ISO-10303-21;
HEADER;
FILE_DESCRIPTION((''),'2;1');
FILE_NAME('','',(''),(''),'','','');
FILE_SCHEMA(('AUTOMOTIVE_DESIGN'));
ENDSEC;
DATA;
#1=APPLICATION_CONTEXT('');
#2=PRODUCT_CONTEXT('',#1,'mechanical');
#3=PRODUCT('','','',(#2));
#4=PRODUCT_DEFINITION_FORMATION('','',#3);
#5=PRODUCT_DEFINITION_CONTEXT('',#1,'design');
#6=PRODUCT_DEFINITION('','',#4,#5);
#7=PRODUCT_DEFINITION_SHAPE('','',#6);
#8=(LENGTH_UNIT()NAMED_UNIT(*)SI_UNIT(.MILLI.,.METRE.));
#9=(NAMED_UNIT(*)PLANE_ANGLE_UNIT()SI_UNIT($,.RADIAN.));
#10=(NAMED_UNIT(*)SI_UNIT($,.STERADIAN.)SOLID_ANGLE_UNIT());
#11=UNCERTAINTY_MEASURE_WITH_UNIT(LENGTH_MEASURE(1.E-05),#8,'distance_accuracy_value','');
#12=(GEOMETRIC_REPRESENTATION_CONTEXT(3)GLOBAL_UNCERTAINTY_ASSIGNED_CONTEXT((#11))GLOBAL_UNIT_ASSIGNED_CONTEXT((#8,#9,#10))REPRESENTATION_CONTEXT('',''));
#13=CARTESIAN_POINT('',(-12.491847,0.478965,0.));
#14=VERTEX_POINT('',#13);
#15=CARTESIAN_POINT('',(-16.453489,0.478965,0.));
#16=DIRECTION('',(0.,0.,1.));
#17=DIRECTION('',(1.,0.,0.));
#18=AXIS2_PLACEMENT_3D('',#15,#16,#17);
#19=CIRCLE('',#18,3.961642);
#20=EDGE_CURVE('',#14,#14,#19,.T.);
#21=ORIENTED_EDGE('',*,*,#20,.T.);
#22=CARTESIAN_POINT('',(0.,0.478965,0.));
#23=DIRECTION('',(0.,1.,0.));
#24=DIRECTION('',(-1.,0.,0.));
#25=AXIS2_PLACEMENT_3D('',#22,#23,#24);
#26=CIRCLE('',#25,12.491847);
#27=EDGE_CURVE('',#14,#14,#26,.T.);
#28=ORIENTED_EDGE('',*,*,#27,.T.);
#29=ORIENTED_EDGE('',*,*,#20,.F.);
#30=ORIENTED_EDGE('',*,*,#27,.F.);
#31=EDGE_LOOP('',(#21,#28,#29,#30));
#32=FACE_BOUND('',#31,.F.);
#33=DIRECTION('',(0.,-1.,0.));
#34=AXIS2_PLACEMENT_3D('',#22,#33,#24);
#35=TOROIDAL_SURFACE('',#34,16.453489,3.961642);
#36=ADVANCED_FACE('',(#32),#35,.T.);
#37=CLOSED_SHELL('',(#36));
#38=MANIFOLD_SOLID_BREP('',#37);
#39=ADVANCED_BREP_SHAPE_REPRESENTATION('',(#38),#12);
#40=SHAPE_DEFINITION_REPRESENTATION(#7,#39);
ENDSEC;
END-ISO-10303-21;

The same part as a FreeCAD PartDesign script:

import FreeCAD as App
import Part
import Sketcher
from FreeCAD import Vector
Q = App.Units.Quantity

doc = App.newDocument("Part")
params = doc.addObject("Spreadsheet::Sheet", "Params")
for row, (alias, value) in enumerate([
    ("revolution_angle", "360 deg"),
], start=1):
    params.set(f"A{row}", alias)
    params.set(f"B{row}", "=" + value)
    params.setAlias(f"B{row}", alias)

body = doc.addObject("PartDesign::Body", "Body")

# Sketch on XY plane
sketch1 = doc.addObject("Sketcher::SketchObject", "Sketch")
body.addObject(sketch1)
sketch1.AttachmentSupport = (doc.XY_Plane, [""])
sketch1.MapMode = "FlatFace"
sketch1.addGeometry(Part.Circle(Vector(-16.5, 0.5, 0), Vector(0, 0, 1), 4), False)
sketch1.addConstraint(Sketcher.Constraint("Diameter", 0, Q("7.923284 mm")))
sketch1.addConstraint(Sketcher.Constraint("DistanceX", 0, 3, -1, 1, Q("16.453489 mm")))
sketch1.addConstraint(Sketcher.Constraint("DistanceY", -1, 1, 0, 3, Q("0.478965 mm")))
revolution = doc.addObject("PartDesign::Revolution", "Revolution")
body.addObject(revolution)
revolution.Profile = sketch1
revolution.ReferenceAxis = (sketch1, ["V_Axis"])
revolution.setExpression("Angle", "Params.revolution_angle")

doc.recompute()
